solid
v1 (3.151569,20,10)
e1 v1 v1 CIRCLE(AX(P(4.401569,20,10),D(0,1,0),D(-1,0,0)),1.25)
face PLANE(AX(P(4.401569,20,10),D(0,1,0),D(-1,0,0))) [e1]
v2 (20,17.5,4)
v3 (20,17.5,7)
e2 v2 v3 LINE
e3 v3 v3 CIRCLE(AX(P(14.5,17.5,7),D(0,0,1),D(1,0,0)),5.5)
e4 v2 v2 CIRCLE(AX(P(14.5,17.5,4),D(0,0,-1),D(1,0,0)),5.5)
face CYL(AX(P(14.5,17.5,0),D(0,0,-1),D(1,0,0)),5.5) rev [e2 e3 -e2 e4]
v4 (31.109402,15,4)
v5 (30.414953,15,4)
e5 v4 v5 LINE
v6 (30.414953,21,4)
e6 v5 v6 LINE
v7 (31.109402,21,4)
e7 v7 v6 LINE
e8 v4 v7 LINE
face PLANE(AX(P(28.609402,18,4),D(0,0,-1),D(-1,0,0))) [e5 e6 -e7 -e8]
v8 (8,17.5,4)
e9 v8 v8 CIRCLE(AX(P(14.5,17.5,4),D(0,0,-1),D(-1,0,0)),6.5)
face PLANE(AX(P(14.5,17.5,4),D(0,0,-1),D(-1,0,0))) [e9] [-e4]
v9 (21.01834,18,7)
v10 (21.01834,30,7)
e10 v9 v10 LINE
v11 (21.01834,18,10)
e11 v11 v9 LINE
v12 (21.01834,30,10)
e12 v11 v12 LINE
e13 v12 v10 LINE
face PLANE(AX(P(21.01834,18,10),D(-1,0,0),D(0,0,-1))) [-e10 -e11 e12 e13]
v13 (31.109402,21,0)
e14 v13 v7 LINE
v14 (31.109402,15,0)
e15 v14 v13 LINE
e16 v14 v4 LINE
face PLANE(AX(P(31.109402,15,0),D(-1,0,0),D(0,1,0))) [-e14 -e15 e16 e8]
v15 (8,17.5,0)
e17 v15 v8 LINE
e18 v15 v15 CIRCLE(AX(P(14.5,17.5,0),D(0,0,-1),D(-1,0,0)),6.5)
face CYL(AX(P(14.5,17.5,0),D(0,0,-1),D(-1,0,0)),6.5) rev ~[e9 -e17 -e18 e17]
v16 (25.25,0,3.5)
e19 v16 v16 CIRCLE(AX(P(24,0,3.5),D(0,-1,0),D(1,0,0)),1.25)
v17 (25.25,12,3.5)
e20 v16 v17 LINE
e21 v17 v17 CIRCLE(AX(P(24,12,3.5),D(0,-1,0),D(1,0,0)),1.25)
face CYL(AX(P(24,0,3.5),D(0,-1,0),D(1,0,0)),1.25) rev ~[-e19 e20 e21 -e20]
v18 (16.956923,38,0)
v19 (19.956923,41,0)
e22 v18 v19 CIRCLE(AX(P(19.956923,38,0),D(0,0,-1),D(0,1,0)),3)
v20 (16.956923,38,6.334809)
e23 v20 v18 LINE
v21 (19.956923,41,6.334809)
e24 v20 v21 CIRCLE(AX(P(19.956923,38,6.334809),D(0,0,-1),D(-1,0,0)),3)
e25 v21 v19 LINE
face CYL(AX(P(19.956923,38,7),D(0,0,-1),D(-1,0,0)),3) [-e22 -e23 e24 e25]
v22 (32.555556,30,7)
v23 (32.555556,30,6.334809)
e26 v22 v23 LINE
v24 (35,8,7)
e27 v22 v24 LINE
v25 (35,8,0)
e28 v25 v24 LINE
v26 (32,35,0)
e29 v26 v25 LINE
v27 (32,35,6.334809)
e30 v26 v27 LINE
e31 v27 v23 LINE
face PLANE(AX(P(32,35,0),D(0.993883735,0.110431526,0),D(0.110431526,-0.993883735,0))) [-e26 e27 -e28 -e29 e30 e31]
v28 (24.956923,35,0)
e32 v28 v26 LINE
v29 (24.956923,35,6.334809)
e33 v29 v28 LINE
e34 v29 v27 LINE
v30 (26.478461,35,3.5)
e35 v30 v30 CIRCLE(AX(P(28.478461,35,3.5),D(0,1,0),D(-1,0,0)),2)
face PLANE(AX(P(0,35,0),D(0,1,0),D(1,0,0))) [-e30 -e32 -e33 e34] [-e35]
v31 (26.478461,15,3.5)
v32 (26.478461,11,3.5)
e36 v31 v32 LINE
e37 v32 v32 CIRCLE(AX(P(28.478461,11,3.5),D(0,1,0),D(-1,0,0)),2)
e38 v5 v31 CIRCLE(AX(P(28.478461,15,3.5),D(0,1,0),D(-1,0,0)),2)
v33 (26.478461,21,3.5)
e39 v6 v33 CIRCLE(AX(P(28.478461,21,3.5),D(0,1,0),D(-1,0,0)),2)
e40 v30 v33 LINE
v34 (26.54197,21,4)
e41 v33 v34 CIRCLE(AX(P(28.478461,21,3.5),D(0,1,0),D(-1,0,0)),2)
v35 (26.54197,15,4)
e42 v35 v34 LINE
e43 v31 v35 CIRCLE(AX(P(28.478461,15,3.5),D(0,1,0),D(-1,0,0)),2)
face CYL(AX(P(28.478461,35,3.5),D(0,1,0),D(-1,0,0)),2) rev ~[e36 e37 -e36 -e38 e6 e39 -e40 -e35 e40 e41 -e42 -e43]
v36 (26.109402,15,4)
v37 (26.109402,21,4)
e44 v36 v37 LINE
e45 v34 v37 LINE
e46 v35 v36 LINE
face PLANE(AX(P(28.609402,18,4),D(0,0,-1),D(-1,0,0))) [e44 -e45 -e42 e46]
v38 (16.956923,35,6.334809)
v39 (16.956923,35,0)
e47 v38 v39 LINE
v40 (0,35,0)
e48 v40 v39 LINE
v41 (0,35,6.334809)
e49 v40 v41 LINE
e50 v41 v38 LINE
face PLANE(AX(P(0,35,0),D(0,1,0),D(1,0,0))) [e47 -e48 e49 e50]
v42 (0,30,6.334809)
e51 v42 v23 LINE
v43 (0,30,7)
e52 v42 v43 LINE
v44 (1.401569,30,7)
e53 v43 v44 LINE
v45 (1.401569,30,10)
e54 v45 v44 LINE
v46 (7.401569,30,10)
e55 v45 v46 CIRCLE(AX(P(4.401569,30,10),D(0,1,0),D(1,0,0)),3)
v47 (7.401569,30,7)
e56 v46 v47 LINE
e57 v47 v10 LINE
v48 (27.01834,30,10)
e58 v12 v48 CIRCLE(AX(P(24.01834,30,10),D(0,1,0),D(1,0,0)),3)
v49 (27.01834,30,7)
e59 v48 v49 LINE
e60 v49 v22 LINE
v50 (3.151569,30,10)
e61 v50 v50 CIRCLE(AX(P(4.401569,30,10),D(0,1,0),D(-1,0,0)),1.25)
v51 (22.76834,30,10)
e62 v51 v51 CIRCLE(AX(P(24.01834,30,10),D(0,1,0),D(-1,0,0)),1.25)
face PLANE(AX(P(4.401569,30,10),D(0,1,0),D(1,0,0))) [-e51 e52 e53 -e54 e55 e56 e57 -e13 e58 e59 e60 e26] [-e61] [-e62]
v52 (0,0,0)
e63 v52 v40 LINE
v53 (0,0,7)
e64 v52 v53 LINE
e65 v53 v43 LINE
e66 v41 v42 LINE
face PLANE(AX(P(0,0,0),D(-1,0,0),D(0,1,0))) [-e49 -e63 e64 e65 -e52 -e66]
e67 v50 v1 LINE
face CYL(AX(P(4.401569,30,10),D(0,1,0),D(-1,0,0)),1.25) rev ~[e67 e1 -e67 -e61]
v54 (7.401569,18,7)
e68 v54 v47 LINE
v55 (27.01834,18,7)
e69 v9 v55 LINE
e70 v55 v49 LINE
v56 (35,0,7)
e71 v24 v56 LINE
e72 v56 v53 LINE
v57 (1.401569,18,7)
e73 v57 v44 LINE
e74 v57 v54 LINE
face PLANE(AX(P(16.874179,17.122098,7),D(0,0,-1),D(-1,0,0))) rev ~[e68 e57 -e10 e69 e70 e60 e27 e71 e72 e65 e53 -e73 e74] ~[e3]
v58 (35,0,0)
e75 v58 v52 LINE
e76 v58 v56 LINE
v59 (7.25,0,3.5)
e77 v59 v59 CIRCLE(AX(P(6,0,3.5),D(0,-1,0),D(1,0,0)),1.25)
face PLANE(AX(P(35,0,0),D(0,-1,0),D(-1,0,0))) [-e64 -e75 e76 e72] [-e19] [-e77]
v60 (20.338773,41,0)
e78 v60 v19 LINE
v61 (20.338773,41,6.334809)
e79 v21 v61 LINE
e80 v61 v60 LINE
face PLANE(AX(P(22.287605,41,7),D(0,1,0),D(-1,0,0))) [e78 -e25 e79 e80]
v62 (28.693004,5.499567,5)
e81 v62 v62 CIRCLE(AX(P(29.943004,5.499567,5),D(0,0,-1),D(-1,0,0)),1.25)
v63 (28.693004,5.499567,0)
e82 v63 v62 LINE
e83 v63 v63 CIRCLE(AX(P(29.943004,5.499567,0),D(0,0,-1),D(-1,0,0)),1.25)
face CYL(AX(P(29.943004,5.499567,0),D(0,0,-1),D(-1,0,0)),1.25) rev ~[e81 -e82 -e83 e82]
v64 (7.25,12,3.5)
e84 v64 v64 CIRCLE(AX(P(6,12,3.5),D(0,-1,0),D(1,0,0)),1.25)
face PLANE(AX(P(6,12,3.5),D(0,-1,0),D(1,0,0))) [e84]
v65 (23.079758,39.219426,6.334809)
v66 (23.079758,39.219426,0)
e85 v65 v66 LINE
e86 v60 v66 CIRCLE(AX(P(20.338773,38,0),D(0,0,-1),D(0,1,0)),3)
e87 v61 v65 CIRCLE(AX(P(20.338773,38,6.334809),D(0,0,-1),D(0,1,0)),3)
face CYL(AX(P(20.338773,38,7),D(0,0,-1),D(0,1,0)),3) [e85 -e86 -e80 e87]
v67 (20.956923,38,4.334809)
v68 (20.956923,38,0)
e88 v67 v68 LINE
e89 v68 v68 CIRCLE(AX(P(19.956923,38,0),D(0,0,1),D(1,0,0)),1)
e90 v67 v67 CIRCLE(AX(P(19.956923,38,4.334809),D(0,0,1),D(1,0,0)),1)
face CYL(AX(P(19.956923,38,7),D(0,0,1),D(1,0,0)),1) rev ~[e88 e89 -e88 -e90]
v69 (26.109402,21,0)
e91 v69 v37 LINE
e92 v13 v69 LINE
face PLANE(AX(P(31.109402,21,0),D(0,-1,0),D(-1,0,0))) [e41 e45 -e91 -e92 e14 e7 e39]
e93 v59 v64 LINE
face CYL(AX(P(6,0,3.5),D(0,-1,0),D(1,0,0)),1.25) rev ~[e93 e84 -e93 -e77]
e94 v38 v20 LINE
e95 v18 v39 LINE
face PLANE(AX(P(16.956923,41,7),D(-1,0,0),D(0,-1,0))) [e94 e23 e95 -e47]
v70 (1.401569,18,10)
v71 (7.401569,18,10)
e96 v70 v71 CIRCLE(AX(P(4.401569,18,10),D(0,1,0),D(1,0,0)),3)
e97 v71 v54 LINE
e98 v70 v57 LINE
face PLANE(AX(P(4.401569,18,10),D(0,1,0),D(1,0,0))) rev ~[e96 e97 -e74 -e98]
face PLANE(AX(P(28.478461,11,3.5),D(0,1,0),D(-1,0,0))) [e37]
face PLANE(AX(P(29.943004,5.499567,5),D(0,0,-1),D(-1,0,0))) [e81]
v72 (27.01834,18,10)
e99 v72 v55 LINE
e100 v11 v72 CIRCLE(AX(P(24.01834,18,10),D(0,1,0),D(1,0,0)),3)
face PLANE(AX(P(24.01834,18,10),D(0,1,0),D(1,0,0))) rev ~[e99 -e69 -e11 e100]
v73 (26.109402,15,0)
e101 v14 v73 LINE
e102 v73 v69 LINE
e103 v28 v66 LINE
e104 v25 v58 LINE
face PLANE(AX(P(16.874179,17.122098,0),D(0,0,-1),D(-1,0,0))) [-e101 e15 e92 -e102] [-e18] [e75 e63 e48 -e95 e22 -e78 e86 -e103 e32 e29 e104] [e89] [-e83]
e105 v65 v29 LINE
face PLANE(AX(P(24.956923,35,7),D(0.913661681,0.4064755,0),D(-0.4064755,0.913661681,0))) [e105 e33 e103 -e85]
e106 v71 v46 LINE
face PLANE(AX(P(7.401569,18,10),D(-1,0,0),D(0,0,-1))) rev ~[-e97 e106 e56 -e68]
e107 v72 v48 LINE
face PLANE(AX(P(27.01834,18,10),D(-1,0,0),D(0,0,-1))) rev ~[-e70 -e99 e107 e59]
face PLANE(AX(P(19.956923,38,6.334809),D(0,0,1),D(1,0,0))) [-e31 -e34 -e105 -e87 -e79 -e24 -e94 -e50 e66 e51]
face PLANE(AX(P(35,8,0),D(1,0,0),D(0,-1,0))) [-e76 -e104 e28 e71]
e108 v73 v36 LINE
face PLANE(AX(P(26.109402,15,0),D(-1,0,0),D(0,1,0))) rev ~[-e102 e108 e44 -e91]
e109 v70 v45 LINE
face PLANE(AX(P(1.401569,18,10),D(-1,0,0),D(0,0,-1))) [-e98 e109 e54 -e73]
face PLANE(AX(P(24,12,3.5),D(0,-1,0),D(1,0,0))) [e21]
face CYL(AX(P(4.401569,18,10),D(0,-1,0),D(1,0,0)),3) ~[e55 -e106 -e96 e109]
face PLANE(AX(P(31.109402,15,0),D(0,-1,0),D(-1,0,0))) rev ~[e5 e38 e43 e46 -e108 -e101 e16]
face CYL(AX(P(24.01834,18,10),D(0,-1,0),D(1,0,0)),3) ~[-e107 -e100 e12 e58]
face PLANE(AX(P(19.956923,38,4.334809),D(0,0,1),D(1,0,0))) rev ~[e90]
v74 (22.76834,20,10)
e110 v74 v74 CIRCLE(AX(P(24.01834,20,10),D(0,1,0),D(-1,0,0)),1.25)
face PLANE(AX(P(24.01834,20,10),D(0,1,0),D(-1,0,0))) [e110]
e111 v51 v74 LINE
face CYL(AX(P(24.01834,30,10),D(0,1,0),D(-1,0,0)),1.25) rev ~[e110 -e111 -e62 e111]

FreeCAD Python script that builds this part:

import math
import FreeCAD as App
import Part
import Sketcher
from FreeCAD import Vector


def edges_at(feature, points):
    """Names of the edges that pass closest to the given points."""
    edges = feature.Shape.Edges
    near = lambda p: min(range(len(edges)), key=lambda i: edges[i].distToShape(Part.Vertex(*p))[0])
    return sorted({f"Edge{near(p) + 1}" for p in points})


def add_polygon(sketch, points):
    """Adds a closed chain of lines whose ends are joined by coincident constraints."""
    first, n = sketch.GeometryCount, len(points)
    for a, b in zip(points, points[1:] + points[:1]):
        sketch.addGeometry(Part.LineSegment(App.Vector(*a, 0), App.Vector(*b, 0)), False)
    for i in range(n):
        sketch.addConstraint(Sketcher.Constraint("Coincident", first + i, 2, first + (i + 1) % n, 1))

doc = App.newDocument("Part")
body = doc.addObject("PartDesign::Body", "Body")

# Sketch on XY plane
sketch1 = body.newObject("Sketcher::SketchObject", "Sketch")
sketch1.AttachmentSupport = (doc.getObject("XY_Plane"), [""])
sketch1.MapMode = "FlatFace"
add_polygon(sketch1, [(0, 35), (0, 0), (35, 0), (35, 8), (32, 35)])  # lines 0-4
sketch1.addGeometry(Part.Circle(Vector(14, 18, 0), Vector(0, 0, 1), 6), False)  # 5
sketch1.addConstraint(Sketcher.Constraint("Vertical", 0))
sketch1.addConstraint(Sketcher.Constraint("Horizontal", 1))
sketch1.addConstraint(Sketcher.Constraint("Vertical", 2))
sketch1.addConstraint(Sketcher.Constraint("Horizontal", 4))
sketch1.addConstraint(Sketcher.Constraint("Coincident", 0, 2, -1, 1))
sketch1.addConstraint(Sketcher.Constraint("Equal", 1, 0))
sketch1.addConstraint(Sketcher.Constraint("Diameter", 5, 11.0))
sketch1.addConstraint(Sketcher.Constraint("DistanceX", 1, 1, 1, 2, 35.0))
sketch1.addConstraint(Sketcher.Constraint("DistanceX", 4, 2, 4, 1, 32.0))
sketch1.addConstraint(Sketcher.Constraint("DistanceY", 2, 1, 2, 2, 8.0))
sketch1.addConstraint(Sketcher.Constraint("DistanceX", -1, 1, 5, 3, 14.5))
sketch1.addConstraint(Sketcher.Constraint("DistanceY", -1, 1, 5, 3, 17.5))
pad1 = body.newObject("PartDesign::Pad", "Pad")
pad1.Profile = sketch1
pad1.Length = 7

# Sketch on XZ plane
sketch2 = body.newObject("Sketcher::SketchObject", "Sketch001")
sketch2.AttachmentSupport = (doc.getObject("XZ_Plane"), [""])
sketch2.MapMode = "FlatFace"
sketch2.addGeometry(Part.Circle(Vector(6, 3.5, 0), Vector(0, 0, 1), 1.2), False)
sketch2.addConstraint(Sketcher.Constraint("Diameter", 0, 2.5))
sketch2.addConstraint(Sketcher.Constraint("DistanceX", -1, 1, 0, 3, 6.0))
sketch2.addConstraint(Sketcher.Constraint("DistanceY", -1, 1, 0, 3, 3.5))
pocket1 = body.newObject("PartDesign::Pocket", "Pocket")
pocket1.Profile = sketch2
pocket1.Length = 12

# Sketch on XZ plane
sketch3 = body.newObject("Sketcher::SketchObject", "Sketch002")
sketch3.AttachmentSupport = (doc.getObject("XZ_Plane"), [""])
sketch3.MapMode = "FlatFace"
sketch3.addGeometry(Part.Circle(Vector(24, 3.5, 0), Vector(0, 0, 1), 1.2), False)
sketch3.addConstraint(Sketcher.Constraint("Diameter", 0, 2.5))
sketch3.addConstraint(Sketcher.Constraint("DistanceX", -1, 1, 0, 3, 24.0))
sketch3.addConstraint(Sketcher.Constraint("DistanceY", -1, 1, 0, 3, 3.5))
pocket2 = body.newObject("PartDesign::Pocket", "Pocket001")
pocket2.Profile = sketch3
pocket2.Length = 12

# Sketch on XY plane
sketch4 = body.newObject("Sketcher::SketchObject", "Sketch003")
sketch4.AttachmentSupport = (doc.getObject("XY_Plane"), [""])
sketch4.MapMode = "FlatFace"
sketch4.AttachmentOffset = App.Placement(Vector(0, 0, 7), App.Rotation())
add_polygon(sketch4, [(17, 41), (17, 35), (25, 35), (22, 41)])  # lines 0-3
sketch4.addConstraint(Sketcher.Constraint("Vertical", 0))
sketch4.addConstraint(Sketcher.Constraint("Horizontal", 1))
sketch4.addConstraint(Sketcher.Constraint("Horizontal", 3))
sketch4.addConstraint(Sketcher.Constraint("DistanceX", 1, 1, 1, 2, 8.0))
sketch4.addConstraint(Sketcher.Constraint("DistanceY", 0, 2, 0, 1, 6.0))
sketch4.addConstraint(Sketcher.Constraint("DistanceY", -1, 1, 0, 2, 35.0))
sketch4.addConstraint(Sketcher.Constraint("DistanceX", 3, 2, 3, 1, 5.330683))
sketch4.addConstraint(Sketcher.Constraint("DistanceX", -1, 1, 0, 2, 16.956923))
pad2 = body.newObject("PartDesign::Pad", "Pad001")
pad2.Profile = sketch4
pad2.Length = 7
pad2.Reversed = True
doc.recompute()

fillet = body.newObject("PartDesign::Fillet", "Fillet")
fillet.Base = (pad2, edges_at(pad2, [(22.288, 41, 3.5), (16.957, 41, 3.5)]))
fillet.Radius = 3

# Sketch on XY plane
sketch5 = body.newObject("Sketcher::SketchObject", "Sketch004")
sketch5.AttachmentSupport = (doc.getObject("XY_Plane"), [""])
sketch5.MapMode = "FlatFace"
sketch5.AttachmentOffset = App.Placement(Vector(0, 0, 7), App.Rotation())
sketch5.addGeometry(Part.Circle(Vector(20, 38, 0), Vector(0, 0, 1), 1), False)
sketch5.addConstraint(Sketcher.Constraint("Diameter", 0, 2.0))
sketch5.addConstraint(Sketcher.Constraint("DistanceY", -1, 1, 0, 3, 38.0))
sketch5.addConstraint(Sketcher.Constraint("DistanceX", -1, 1, 0, 3, 19.956923))
pocket3 = body.newObject("PartDesign::Pocket", "Pocket002")
pocket3.Profile = sketch5
pocket3.Length = 7

# Sketch on XZ plane
sketch6 = body.newObject("Sketcher::SketchObject", "Sketch005")
sketch6.AttachmentSupport = (doc.getObject("XZ_Plane"), [""])
sketch6.MapMode = "FlatFace"
sketch6.AttachmentOffset = App.Placement(Vector(0, 0, -18), App.Rotation())
sketch6.addGeometry(Part.ArcOfCircle(Part.Circle(Vector(4.4, 10, 0), Vector(0, 0, 1), 3), math.radians(0), math.radians(180)), False)
sketch6.addGeometry(Part.LineSegment(Vector(7.4, 10, 0), Vector(7.4, 4, 0)), False)
sketch6.addGeometry(Part.LineSegment(Vector(7.4, 4, 0), Vector(1.4, 4, 0)), False)
sketch6.addGeometry(Part.LineSegment(Vector(1.4, 4, 0), Vector(1.4, 10, 0)), False)
sketch6.addGeometry(Part.ArcOfCircle(Part.Circle(Vector(24, 10, 0), Vector(0, 0, 1), 3), math.radians(0), math.radians(180)), False)
sketch6.addGeometry(Part.LineSegment(Vector(27, 10, 0), Vector(27, 4, 0)), False)
sketch6.addGeometry(Part.LineSegment(Vector(27, 4, 0), Vector(21, 4, 0)), False)
sketch6.addGeometry(Part.LineSegment(Vector(21, 4, 0), Vector(21, 10, 0)), False)
sketch6.addConstraint(Sketcher.Constraint("Tangent", 0, 1, 1, 1))
sketch6.addConstraint(Sketcher.Constraint("Coincident", 1, 2, 2, 1))
sketch6.addConstraint(Sketcher.Constraint("Coincident", 2, 2, 3, 1))
sketch6.addConstraint(Sketcher.Constraint("Tangent", 3, 2, 0, 2))
sketch6.addConstraint(Sketcher.Constraint("Tangent", 4, 1, 5, 1))
sketch6.addConstraint(Sketcher.Constraint("Coincident", 5, 2, 6, 1))
sketch6.addConstraint(Sketcher.Constraint("Coincident", 6, 2, 7, 1))
sketch6.addConstraint(Sketcher.Constraint("Tangent", 7, 2, 4, 2))
sketch6.addConstraint(Sketcher.Constraint("Vertical", 1))
sketch6.addConstraint(Sketcher.Constraint("Horizontal", 2))
sketch6.addConstraint(Sketcher.Constraint("Vertical", 3))
sketch6.addConstraint(Sketcher.Constraint("Vertical", 5))
sketch6.addConstraint(Sketcher.Constraint("Horizontal", 6))
sketch6.addConstraint(Sketcher.Constraint("Vertical", 7))
sketch6.addConstraint(Sketcher.Constraint("Equal", 0, 4))
sketch6.addConstraint(Sketcher.Constraint("Horizontal", 0, 3, 4, 3))
sketch6.addConstraint(Sketcher.Constraint("Horizontal", 2, 2, 5, 2))
sketch6.addConstraint(Sketcher.Constraint("Equal", 6, 1))
sketch6.addConstraint(Sketcher.Constraint("Radius", 0, 3.0))
sketch6.addConstraint(Sketcher.Constraint("DistanceY", -1, 1, 0, 3, 10.0))
sketch6.addConstraint(Sketcher.Constraint("DistanceX", -1, 1, 0, 3, 4.401569))
sketch6.addConstraint(Sketcher.Constraint("DistanceX", -1, 1, 4, 3, 24.01834))
pad3 = body.newObject("PartDesign::Pad", "Pad002")
pad3.Profile = sketch6
pad3.Length = 12
pad3.Reversed = True

# Sketch on XZ plane
sketch7 = body.newObject("Sketcher::SketchObject", "Sketch006")
sketch7.AttachmentSupport = (doc.getObject("XZ_Plane"), [""])
sketch7.MapMode = "FlatFace"
sketch7.AttachmentOffset = App.Placement(Vector(0, 0, -30), App.Rotation())
sketch7.addGeometry(Part.Circle(Vector(4.4, 10, 0), Vector(0, 0, 1), 1.2), False)
sketch7.addGeometry(Part.Circle(Vector(24, 10, 0), Vector(0, 0, 1), 1.2), False)
sketch7.addConstraint(Sketcher.Constraint("Equal", 0, 1))
sketch7.addConstraint(Sketcher.Constraint("Horizontal", 0, 3, 1, 3))
sketch7.addConstraint(Sketcher.Constraint("Diameter", 0, 2.5))
sketch7.addConstraint(Sketcher.Constraint("DistanceY", -1, 1, 0, 3, 10.0))
sketch7.addConstraint(Sketcher.Constraint("DistanceX", -1, 1, 0, 3, 4.401569))
sketch7.addConstraint(Sketcher.Constraint("DistanceX", -1, 1, 1, 3, 24.01834))
pocket4 = body.newObject("PartDesign::Pocket", "Pocket003")
pocket4.Profile = sketch7
pocket4.Length = 10
pocket4.Reversed = True

# Sketch on XZ plane
sketch8 = body.newObject("Sketcher::SketchObject", "Sketch007")
sketch8.AttachmentSupport = (doc.getObject("XZ_Plane"), [""])
sketch8.MapMode = "FlatFace"
sketch8.AttachmentOffset = App.Placement(Vector(0, 0, -35), App.Rotation())
sketch8.addGeometry(Part.Circle(Vector(28.5, 3.5, 0), Vector(0, 0, 1), 2), False)
sketch8.addConstraint(Sketcher.Constraint("Diameter", 0, 4.0))
sketch8.addConstraint(Sketcher.Constraint("DistanceY", -1, 1, 0, 3, 3.5))
sketch8.addConstraint(Sketcher.Constraint("DistanceX", -1, 1, 0, 3, 28.478461))
pocket5 = body.newObject("PartDesign::Pocket", "Pocket004")
pocket5.Profile = sketch8
pocket5.Length = 24
pocket5.Reversed = True

# Sketch on XY plane
sketch9 = body.newObject("Sketcher::SketchObject", "Sketch008")
sketch9.AttachmentSupport = (doc.getObject("XY_Plane"), [""])
sketch9.MapMode = "FlatFace"
add_polygon(sketch9, [(31, 21), (31, 15), (26, 15), (26, 21)])  # lines 0-3
sketch9.addConstraint(Sketcher.Constraint("Vertical", 0))
sketch9.addConstraint(Sketcher.Constraint("Horizontal", 1))
sketch9.addConstraint(Sketcher.Constraint("Vertical", 2))
sketch9.addConstraint(Sketcher.Constraint("Horizontal", 3))
sketch9.addConstraint(Sketcher.Constraint("DistanceX", 1, 2, 1, 1, 5.0))
sketch9.addConstraint(Sketcher.Constraint("DistanceY", 0, 2, 0, 1, 6.0))
sketch9.addConstraint(Sketcher.Constraint("DistanceY", -1, 1, 0, 2, 15.0))
sketch9.addConstraint(Sketcher.Constraint("DistanceX", -1, 1, 0, 2, 31.109402))
pocket6 = body.newObject("PartDesign::Pocket", "Pocket005")
pocket6.Profile = sketch9
pocket6.Length = 4
pocket6.Reversed = True

# Sketch on XY plane
sketch10 = body.newObject("Sketcher::SketchObject", "Sketch009")
sketch10.AttachmentSupport = (doc.getObject("XY_Plane"), [""])
sketch10.MapMode = "FlatFace"
sketch10.addGeometry(Part.Circle(Vector(14, 18, 0), Vector(0, 0, 1), 6), False)
sketch10.addConstraint(Sketcher.Constraint("Diameter", 0, 13.0))
sketch10.addConstraint(Sketcher.Constraint("DistanceX", -1, 1, 0, 3, 14.5))
sketch10.addConstraint(Sketcher.Constraint("DistanceY", -1, 1, 0, 3, 17.5))
pocket7 = body.newObject("PartDesign::Pocket", "Pocket006")
pocket7.Profile = sketch10
pocket7.Length = 4
pocket7.Reversed = True

# Sketch on XZ plane
sketch11 = body.newObject("Sketcher::SketchObject", "Sketch010")
sketch11.AttachmentSupport = (doc.getObject("XZ_Plane"), [""])
sketch11.MapMode = "FlatFace"
sketch11.AttachmentOffset = App.Placement(Vector(0, 0, -41), App.Rotation())
add_polygon(sketch11, [(0, 6.74), (0, 7), (35, 7), (35, 6.74)])  # lines 0-3
sketch11.addConstraint(Sketcher.Constraint("Vertical", 0))
sketch11.addConstraint(Sketcher.Constraint("Horizontal", 1))
sketch11.addConstraint(Sketcher.Constraint("Vertical", 2))
sketch11.addConstraint(Sketcher.Constraint("Horizontal", 3))
sketch11.addConstraint(Sketcher.Constraint("PointOnObject", 0, 2, -2))
sketch11.addConstraint(Sketcher.Constraint("DistanceX", 1, 1, 1, 2, 35.0))
sketch11.addConstraint(Sketcher.Constraint("DistanceY", -1, 1, 0, 2, 7.0))
sketch11.addConstraint(Sketcher.Constraint("DistanceY", 0, 1, 0, 2, 0.258068))
pocket8 = body.newObject("PartDesign::Pocket", "Pocket007")
pocket8.Profile = sketch11
pocket8.Length = 11
pocket8.Reversed = True

# Sketch on XZ plane
sketch12 = body.newObject("Sketcher::SketchObject", "Sketch011")
sketch12.AttachmentSupport = (doc.getObject("XZ_Plane"), [""])
sketch12.MapMode = "FlatFace"
sketch12.AttachmentOffset = App.Placement(Vector(0, 0, -41), App.Rotation())
add_polygon(sketch12, [(0, 6.33), (0, 6.74), (33.44, 6.74), (33.44, 6.33)])  # lines 0-3
sketch12.addConstraint(Sketcher.Constraint("Vertical", 0))
sketch12.addConstraint(Sketcher.Constraint("Horizontal", 1))
sketch12.addConstraint(Sketcher.Constraint("Vertical", 2))
sketch12.addConstraint(Sketcher.Constraint("Horizontal", 3))
sketch12.addConstraint(Sketcher.Constraint("PointOnObject", 0, 2, -2))
sketch12.addConstraint(Sketcher.Constraint("DistanceX", 1, 1, 1, 2, 33.436878))
sketch12.addConstraint(Sketcher.Constraint("DistanceY", 0, 1, 0, 2, 0.407123))
sketch12.addConstraint(Sketcher.Constraint("DistanceY", -1, 1, 0, 2, 6.741932))
pocket9 = body.newObject("PartDesign::Pocket", "Pocket008")
pocket9.Profile = sketch12
pocket9.Length = 11
pocket9.Reversed = True

# Sketch on XY plane
sketch13 = body.newObject("Sketcher::SketchObject", "Sketch012")
sketch13.AttachmentSupport = (doc.getObject("XY_Plane"), [""])
sketch13.MapMode = "FlatFace"
sketch13.AttachmentOffset = App.Placement(Vector(0, 0, 6.334809), App.Rotation())
sketch13.addGeometry(Part.Circle(Vector(20, 38, 0), Vector(0, 0, 1), 1), False)
sketch13.addConstraint(Sketcher.Constraint("Diameter", 0, 2.0))
sketch13.addConstraint(Sketcher.Constraint("DistanceY", -1, 1, 0, 3, 38.0))
sketch13.addConstraint(Sketcher.Constraint("DistanceX", -1, 1, 0, 3, 19.956923))
pad4 = body.newObject("PartDesign::Pad", "Pad003")
pad4.Profile = sketch13
pad4.Length = 2
pad4.Reversed = True

# Sketch on XY plane
sketch14 = body.newObject("Sketcher::SketchObject", "Sketch013")
sketch14.AttachmentSupport = (doc.getObject("XY_Plane"), [""])
sketch14.MapMode = "FlatFace"
sketch14.addGeometry(Part.Circle(Vector(29.9, 5.5, 0), Vector(0, 0, 1), 1.2), False)
sketch14.addConstraint(Sketcher.Constraint("Diameter", 0, 2.5))
sketch14.addConstraint(Sketcher.Constraint("DistanceX", -1, 1, 0, 3, 29.943004))
sketch14.addConstraint(Sketcher.Constraint("DistanceY", -1, 1, 0, 3, 5.499567))
pocket10 = body.newObject("PartDesign::Pocket", "Pocket009")
pocket10.Profile = sketch14
pocket10.Length = 5
pocket10.Reversed = True

doc.recompute()
